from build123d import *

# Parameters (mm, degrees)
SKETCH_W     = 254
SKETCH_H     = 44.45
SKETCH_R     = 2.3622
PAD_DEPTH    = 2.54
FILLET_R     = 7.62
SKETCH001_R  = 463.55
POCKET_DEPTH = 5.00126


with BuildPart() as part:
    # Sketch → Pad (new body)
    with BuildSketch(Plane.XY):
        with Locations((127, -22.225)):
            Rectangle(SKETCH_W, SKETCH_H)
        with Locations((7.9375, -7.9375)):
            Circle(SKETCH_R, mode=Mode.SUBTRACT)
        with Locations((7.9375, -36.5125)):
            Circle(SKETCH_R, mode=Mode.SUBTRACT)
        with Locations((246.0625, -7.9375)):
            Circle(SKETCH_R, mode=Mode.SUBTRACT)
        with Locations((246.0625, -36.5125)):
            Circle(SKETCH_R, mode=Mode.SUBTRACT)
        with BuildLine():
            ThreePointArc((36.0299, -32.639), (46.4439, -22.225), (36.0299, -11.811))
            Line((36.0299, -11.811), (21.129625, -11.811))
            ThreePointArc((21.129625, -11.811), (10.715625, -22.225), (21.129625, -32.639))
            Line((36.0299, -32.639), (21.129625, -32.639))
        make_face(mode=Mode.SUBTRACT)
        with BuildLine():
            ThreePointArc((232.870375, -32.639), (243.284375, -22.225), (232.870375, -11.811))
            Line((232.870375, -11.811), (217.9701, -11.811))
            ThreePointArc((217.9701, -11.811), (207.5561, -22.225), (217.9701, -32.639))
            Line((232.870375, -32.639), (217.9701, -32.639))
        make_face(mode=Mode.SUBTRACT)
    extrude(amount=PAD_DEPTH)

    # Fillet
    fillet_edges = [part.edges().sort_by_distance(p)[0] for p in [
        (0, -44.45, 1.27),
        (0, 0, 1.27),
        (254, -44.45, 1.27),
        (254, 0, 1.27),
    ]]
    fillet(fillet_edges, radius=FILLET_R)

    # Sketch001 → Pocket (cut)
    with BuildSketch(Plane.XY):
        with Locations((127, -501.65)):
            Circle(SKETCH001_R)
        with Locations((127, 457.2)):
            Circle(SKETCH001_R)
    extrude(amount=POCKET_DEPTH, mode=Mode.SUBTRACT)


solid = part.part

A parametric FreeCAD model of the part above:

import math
import FreeCAD as App
import Part
import Sketcher
Q = App.Units.Quantity


def edges_at(feature, points):
    """Names of the edges that pass closest to the given points."""
    edges = feature.Shape.Edges
    near = lambda p: min(range(len(edges)), key=lambda i: edges[i].distToShape(Part.Vertex(*p))[0])
    return sorted({f"Edge{near(p) + 1}" for p in points})

doc = App.newDocument("Part")
params = doc.addObject("Spreadsheet::Sheet", "Params")
for row, (alias, value) in enumerate([
    ("sketch1_width", "10 in"),
    ("sketch1_radius", "0.41 in"),
    ("sketch1_diameter", "0.186 in"),
    ("sketch1_height", "1.75 in"),
    ("pad1_length", "0.1 in"),
    ("fillet_radius", "0.3 in"),
    ("sketch2_diameter", "36.5 in"),
    ("pocket1_length", "0.1969 in"),
], start=1):
    params.set(f"A{row}", alias)
    params.set(f"B{row}", "=" + value)
    params.setAlias(f"B{row}", alias)

body = doc.addObject("PartDesign::Body", "Body")

# Sketch on XY plane
sketch1 = body.newObject("Sketcher::SketchObject", "Sketch")
sketch1.AttachmentSupport = (doc.getObject("XY_Plane"), [""])
sketch1.MapMode = "FlatFace"
sketch1.addGeometry(Part.LineSegment(App.Vector(0, 0, 0), App.Vector(0, -44.45, 0)), False)
sketch1.addGeometry(Part.LineSegment(App.Vector(0, -44.45, 0), App.Vector(254, -44.45, 0)), False)
sketch1.addGeometry(Part.LineSegment(App.Vector(254, -44.45, 0), App.Vector(254, 0, 0)), False)
sketch1.addGeometry(Part.LineSegment(App.Vector(254, 0, 0), App.Vector(0, 0, 0)), False)
sketch1.addGeometry(Part.Circle(App.Vector(7.9375, -36.5125, 0), App.Vector(0, 0, 1), 2.3622), False)
sketch1.addGeometry(Part.Circle(App.Vector(246.0625, -36.5125, 0), App.Vector(0, 0, 1), 2.3622), False)
sketch1.addGeometry(Part.ArcOfCircle(Part.Circle(App.Vector(36.0299, -22.225, 0), App.Vector(0, 0, 1), 10.414), math.radians(-90), math.radians(90)), False)
sketch1.addGeometry(Part.LineSegment(App.Vector(36.0299, -32.639, 0), App.Vector(21.129625, -32.639, 0)), False)
sketch1.addGeometry(Part.ArcOfCircle(Part.Circle(App.Vector(21.129625, -22.225, 0), App.Vector(0, 0, 1), 10.414), math.radians(90), math.radians(270)), False)
sketch1.addGeometry(Part.LineSegment(App.Vector(21.129625, -11.811, 0), App.Vector(36.0299, -11.811, 0)), False)
sketch1.addGeometry(Part.Circle(App.Vector(7.9375, -7.9375, 0), App.Vector(0, 0, 1), 2.3622), False)
sketch1.addGeometry(Part.ArcOfCircle(Part.Circle(App.Vector(232.870375, -22.225, 0), App.Vector(0, 0, 1), 10.414), math.radians(-90), math.radians(90)), False)
sketch1.addGeometry(Part.LineSegment(App.Vector(232.870375, -32.639, 0), App.Vector(217.9701, -32.639, 0)), False)
sketch1.addGeometry(Part.ArcOfCircle(Part.Circle(App.Vector(217.9701, -22.225, 0), App.Vector(0, 0, 1), 10.414), math.radians(90), math.radians(270)), False)
sketch1.addGeometry(Part.LineSegment(App.Vector(217.9701, -11.811, 0), App.Vector(232.870375, -11.811, 0)), False)
sketch1.addGeometry(Part.Circle(App.Vector(246.0625, -7.9375, 0), App.Vector(0, 0, 1), 2.3622), False)
sketch1.addConstraint(Sketcher.Constraint("Coincident", 0, 2, 1, 1))
sketch1.addConstraint(Sketcher.Constraint("Coincident", 1, 2, 2, 1))
sketch1.addConstraint(Sketcher.Constraint("Coincident", 2, 2, 3, 1))
sketch1.addConstraint(Sketcher.Constraint("Coincident", 3, 2, 0, 1))
sketch1.addConstraint(Sketcher.Constraint("Tangent", 6, 1, 7, 1))
sketch1.addConstraint(Sketcher.Constraint("Tangent", 7, 2, 8, 2))
sketch1.addConstraint(Sketcher.Constraint("Tangent", 8, 1, 9, 1))
sketch1.addConstraint(Sketcher.Constraint("Tangent", 9, 2, 6, 2))
sketch1.addConstraint(Sketcher.Constraint("Tangent", 11, 1, 12, 1))
sketch1.addConstraint(Sketcher.Constraint("Tangent", 12, 2, 13, 2))
sketch1.addConstraint(Sketcher.Constraint("Tangent", 13, 1, 14, 1))
sketch1.addConstraint(Sketcher.Constraint("Tangent", 14, 2, 11, 2))
sketch1.addConstraint(Sketcher.Constraint("Vertical", 0))
sketch1.addConstraint(Sketcher.Constraint("Horizontal", 1))
sketch1.addConstraint(Sketcher.Constraint("Vertical", 2))
sketch1.addConstraint(Sketcher.Constraint("Horizontal", 3))
sketch1.addConstraint(Sketcher.Constraint("Horizontal", 7))
sketch1.addConstraint(Sketcher.Constraint("Horizontal", 9))
sketch1.addConstraint(Sketcher.Constraint("Horizontal", 12))
sketch1.addConstraint(Sketcher.Constraint("Horizontal", 14))
sketch1.addConstraint(Sketcher.Constraint("Coincident", 3, 2, -1, 1))
sketch1.addConstraint(Sketcher.Constraint("Equal", 4, 5))
sketch1.addConstraint(Sketcher.Constraint("Equal", 5, 10))
sketch1.addConstraint(Sketcher.Constraint("Equal", 8, 11))
sketch1.addConstraint(Sketcher.Constraint("Equal", 10, 15))
sketch1.addConstraint(Sketcher.Constraint("Horizontal", 4, 3, 5, 3))
sketch1.addConstraint(Sketcher.Constraint("Horizontal", 8, 3, 11, 3))
sketch1.addConstraint(Sketcher.Constraint("Horizontal", 10, 3, 15, 3))
sketch1.addConstraint(Sketcher.Constraint("Vertical", 4, 3, 10, 3))
sketch1.addConstraint(Sketcher.Constraint("Vertical", 5, 3, 15, 3))
sketch1.addConstraint(Sketcher.Constraint("Equal", 9, 12))
sketch1.addConstraint(Sketcher.Constraint("DistanceX", 1, 1, 1, 2, Q("10 in")))
sketch1.addConstraint(Sketcher.Constraint("Radius", 6, Q("0.41 in")))
sketch1.addConstraint(Sketcher.Constraint("Diameter", 4, Q("0.186 in")))
sketch1.addConstraint(Sketcher.Constraint("DistanceY", 0, 2, 0, 1, Q("1.75 in")))
sketch1.addConstraint(Sketcher.Constraint("DistanceX", -1, 1, 4, 3, Q("0.3125 in")))
sketch1.addConstraint(Sketcher.Constraint("DistanceY", 4, 3, -1, 1, Q("1.4375 in")))
sketch1.addConstraint(Sketcher.Constraint("DistanceX", -1, 1, 5, 3, Q("9.6875 in")))
sketch1.addConstraint(Sketcher.Constraint("DistanceY", 6, 3, -1, 1, Q("0.875 in")))
sketch1.addConstraint(Sketcher.Constraint("DistanceY", 10, 3, -1, 1, Q("0.3125 in")))
sketch1.addConstraint(Sketcher.Constraint("DistanceX", 4, 3, 6, 3, Q("1.106 in")))
sketch1.addConstraint(Sketcher.Constraint("DistanceX", 13, 3, 5, 3, Q("1.106 in")))
sketch1.addConstraint(Sketcher.Constraint("DistanceX", 7, 2, 7, 1, Q("14.900275 mm")))
sketch1.setExpression("Constraints[31]", "Params.sketch1_width")
sketch1.setExpression("Constraints[32]", "Params.sketch1_radius")
sketch1.setExpression("Constraints[33]", "Params.sketch1_diameter")
sketch1.setExpression("Constraints[34]", "Params.sketch1_height")
pad1 = body.newObject("PartDesign::Pad", "Pad")
pad1.Profile = sketch1
pad1.setExpression("Length", "Params.pad1_length")
doc.recompute()

fillet = body.newObject("PartDesign::Fillet", "Fillet")
fillet.Base = (pad1, edges_at(pad1, [
    (0, -44.45, 1.27),
    (0, 0, 1.27),
    (254, -44.45, 1.27),
    (254, 0, 1.27),
]))
fillet.setExpression("Radius", "Params.fillet_radius")

# Sketch on XY plane
sketch2 = body.newObject("Sketcher::SketchObject", "Sketch001")
sketch2.AttachmentSupport = (doc.getObject("XY_Plane"), [""])
sketch2.MapMode = "FlatFace"
sketch2.addGeometry(Part.Circle(App.Vector(127, -501.65, 0), App.Vector(0, 0, 1), 463.55), False)
sketch2.addGeometry(Part.Circle(App.Vector(127, 457.2, 0), App.Vector(0, 0, 1), 463.55), False)
sketch2.addConstraint(Sketcher.Constraint("Equal", 0, 1))
sketch2.addConstraint(Sketcher.Constraint("Vertical", 0, 3, 1, 3))
sketch2.addConstraint(Sketcher.Constraint("Diameter", 0, Q("36.5 in")))
sketch2.addConstraint(Sketcher.Constraint("DistanceX", -1, 1, 0, 3, Q("5 in")))
sketch2.addConstraint(Sketcher.Constraint("DistanceY", -1, 1, 1, 3, Q("18 in")))
sketch2.addConstraint(Sketcher.Constraint("DistanceY", 0, 3, -1, 1, Q("19.75 in")))
sketch2.setExpression("Constraints[2]", "Params.sketch2_diameter")
pocket1 = body.newObject("PartDesign::Pocket", "Pocket")
pocket1.Profile = sketch2
pocket1.setExpression("Length", "Params.pocket1_length")
pocket1.Reversed = True

doc.recompute()
